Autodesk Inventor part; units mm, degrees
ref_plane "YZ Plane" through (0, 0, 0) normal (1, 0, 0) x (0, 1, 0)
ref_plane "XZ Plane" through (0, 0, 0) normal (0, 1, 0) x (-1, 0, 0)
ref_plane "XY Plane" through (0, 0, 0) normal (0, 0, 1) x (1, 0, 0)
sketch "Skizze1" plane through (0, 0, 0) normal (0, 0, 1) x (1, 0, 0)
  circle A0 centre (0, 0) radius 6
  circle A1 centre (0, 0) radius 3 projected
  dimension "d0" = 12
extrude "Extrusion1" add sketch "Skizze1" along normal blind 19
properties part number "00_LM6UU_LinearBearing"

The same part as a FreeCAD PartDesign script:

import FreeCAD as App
import Part
import Sketcher

V = App.Vector
Q = App.Units.Quantity

doc = App.newDocument("Part")
body = doc.addObject("PartDesign::Body", "Body")

# Sketch on XY plane
sketch1 = body.newObject("Sketcher::SketchObject", "Sketch")
sketch1.AttachmentSupport = (doc.getObject("XY_Plane"), [""])
sketch1.MapMode = "FlatFace"
sketch1.addGeometry([
    Part.Circle(V(0, 0, 0), V(0, 0, 1), 6),
    Part.Circle(V(0, 0, 0), V(0, 0, 1), 3),
], False)
sketch1.addConstraint([
    Sketcher.Constraint("Coincident", 0, 3, -1, 1),
    Sketcher.Constraint("Coincident", 1, 3, -1, 1),
    Sketcher.Constraint("Diameter", 0, Q("12 mm")),
    Sketcher.Constraint("Diameter", 1, Q("6 mm")),
])
pad1 = body.newObject("PartDesign::Pad", "Pad")
pad1.Profile = sketch1
pad1.Length = 19

doc.recompute()
